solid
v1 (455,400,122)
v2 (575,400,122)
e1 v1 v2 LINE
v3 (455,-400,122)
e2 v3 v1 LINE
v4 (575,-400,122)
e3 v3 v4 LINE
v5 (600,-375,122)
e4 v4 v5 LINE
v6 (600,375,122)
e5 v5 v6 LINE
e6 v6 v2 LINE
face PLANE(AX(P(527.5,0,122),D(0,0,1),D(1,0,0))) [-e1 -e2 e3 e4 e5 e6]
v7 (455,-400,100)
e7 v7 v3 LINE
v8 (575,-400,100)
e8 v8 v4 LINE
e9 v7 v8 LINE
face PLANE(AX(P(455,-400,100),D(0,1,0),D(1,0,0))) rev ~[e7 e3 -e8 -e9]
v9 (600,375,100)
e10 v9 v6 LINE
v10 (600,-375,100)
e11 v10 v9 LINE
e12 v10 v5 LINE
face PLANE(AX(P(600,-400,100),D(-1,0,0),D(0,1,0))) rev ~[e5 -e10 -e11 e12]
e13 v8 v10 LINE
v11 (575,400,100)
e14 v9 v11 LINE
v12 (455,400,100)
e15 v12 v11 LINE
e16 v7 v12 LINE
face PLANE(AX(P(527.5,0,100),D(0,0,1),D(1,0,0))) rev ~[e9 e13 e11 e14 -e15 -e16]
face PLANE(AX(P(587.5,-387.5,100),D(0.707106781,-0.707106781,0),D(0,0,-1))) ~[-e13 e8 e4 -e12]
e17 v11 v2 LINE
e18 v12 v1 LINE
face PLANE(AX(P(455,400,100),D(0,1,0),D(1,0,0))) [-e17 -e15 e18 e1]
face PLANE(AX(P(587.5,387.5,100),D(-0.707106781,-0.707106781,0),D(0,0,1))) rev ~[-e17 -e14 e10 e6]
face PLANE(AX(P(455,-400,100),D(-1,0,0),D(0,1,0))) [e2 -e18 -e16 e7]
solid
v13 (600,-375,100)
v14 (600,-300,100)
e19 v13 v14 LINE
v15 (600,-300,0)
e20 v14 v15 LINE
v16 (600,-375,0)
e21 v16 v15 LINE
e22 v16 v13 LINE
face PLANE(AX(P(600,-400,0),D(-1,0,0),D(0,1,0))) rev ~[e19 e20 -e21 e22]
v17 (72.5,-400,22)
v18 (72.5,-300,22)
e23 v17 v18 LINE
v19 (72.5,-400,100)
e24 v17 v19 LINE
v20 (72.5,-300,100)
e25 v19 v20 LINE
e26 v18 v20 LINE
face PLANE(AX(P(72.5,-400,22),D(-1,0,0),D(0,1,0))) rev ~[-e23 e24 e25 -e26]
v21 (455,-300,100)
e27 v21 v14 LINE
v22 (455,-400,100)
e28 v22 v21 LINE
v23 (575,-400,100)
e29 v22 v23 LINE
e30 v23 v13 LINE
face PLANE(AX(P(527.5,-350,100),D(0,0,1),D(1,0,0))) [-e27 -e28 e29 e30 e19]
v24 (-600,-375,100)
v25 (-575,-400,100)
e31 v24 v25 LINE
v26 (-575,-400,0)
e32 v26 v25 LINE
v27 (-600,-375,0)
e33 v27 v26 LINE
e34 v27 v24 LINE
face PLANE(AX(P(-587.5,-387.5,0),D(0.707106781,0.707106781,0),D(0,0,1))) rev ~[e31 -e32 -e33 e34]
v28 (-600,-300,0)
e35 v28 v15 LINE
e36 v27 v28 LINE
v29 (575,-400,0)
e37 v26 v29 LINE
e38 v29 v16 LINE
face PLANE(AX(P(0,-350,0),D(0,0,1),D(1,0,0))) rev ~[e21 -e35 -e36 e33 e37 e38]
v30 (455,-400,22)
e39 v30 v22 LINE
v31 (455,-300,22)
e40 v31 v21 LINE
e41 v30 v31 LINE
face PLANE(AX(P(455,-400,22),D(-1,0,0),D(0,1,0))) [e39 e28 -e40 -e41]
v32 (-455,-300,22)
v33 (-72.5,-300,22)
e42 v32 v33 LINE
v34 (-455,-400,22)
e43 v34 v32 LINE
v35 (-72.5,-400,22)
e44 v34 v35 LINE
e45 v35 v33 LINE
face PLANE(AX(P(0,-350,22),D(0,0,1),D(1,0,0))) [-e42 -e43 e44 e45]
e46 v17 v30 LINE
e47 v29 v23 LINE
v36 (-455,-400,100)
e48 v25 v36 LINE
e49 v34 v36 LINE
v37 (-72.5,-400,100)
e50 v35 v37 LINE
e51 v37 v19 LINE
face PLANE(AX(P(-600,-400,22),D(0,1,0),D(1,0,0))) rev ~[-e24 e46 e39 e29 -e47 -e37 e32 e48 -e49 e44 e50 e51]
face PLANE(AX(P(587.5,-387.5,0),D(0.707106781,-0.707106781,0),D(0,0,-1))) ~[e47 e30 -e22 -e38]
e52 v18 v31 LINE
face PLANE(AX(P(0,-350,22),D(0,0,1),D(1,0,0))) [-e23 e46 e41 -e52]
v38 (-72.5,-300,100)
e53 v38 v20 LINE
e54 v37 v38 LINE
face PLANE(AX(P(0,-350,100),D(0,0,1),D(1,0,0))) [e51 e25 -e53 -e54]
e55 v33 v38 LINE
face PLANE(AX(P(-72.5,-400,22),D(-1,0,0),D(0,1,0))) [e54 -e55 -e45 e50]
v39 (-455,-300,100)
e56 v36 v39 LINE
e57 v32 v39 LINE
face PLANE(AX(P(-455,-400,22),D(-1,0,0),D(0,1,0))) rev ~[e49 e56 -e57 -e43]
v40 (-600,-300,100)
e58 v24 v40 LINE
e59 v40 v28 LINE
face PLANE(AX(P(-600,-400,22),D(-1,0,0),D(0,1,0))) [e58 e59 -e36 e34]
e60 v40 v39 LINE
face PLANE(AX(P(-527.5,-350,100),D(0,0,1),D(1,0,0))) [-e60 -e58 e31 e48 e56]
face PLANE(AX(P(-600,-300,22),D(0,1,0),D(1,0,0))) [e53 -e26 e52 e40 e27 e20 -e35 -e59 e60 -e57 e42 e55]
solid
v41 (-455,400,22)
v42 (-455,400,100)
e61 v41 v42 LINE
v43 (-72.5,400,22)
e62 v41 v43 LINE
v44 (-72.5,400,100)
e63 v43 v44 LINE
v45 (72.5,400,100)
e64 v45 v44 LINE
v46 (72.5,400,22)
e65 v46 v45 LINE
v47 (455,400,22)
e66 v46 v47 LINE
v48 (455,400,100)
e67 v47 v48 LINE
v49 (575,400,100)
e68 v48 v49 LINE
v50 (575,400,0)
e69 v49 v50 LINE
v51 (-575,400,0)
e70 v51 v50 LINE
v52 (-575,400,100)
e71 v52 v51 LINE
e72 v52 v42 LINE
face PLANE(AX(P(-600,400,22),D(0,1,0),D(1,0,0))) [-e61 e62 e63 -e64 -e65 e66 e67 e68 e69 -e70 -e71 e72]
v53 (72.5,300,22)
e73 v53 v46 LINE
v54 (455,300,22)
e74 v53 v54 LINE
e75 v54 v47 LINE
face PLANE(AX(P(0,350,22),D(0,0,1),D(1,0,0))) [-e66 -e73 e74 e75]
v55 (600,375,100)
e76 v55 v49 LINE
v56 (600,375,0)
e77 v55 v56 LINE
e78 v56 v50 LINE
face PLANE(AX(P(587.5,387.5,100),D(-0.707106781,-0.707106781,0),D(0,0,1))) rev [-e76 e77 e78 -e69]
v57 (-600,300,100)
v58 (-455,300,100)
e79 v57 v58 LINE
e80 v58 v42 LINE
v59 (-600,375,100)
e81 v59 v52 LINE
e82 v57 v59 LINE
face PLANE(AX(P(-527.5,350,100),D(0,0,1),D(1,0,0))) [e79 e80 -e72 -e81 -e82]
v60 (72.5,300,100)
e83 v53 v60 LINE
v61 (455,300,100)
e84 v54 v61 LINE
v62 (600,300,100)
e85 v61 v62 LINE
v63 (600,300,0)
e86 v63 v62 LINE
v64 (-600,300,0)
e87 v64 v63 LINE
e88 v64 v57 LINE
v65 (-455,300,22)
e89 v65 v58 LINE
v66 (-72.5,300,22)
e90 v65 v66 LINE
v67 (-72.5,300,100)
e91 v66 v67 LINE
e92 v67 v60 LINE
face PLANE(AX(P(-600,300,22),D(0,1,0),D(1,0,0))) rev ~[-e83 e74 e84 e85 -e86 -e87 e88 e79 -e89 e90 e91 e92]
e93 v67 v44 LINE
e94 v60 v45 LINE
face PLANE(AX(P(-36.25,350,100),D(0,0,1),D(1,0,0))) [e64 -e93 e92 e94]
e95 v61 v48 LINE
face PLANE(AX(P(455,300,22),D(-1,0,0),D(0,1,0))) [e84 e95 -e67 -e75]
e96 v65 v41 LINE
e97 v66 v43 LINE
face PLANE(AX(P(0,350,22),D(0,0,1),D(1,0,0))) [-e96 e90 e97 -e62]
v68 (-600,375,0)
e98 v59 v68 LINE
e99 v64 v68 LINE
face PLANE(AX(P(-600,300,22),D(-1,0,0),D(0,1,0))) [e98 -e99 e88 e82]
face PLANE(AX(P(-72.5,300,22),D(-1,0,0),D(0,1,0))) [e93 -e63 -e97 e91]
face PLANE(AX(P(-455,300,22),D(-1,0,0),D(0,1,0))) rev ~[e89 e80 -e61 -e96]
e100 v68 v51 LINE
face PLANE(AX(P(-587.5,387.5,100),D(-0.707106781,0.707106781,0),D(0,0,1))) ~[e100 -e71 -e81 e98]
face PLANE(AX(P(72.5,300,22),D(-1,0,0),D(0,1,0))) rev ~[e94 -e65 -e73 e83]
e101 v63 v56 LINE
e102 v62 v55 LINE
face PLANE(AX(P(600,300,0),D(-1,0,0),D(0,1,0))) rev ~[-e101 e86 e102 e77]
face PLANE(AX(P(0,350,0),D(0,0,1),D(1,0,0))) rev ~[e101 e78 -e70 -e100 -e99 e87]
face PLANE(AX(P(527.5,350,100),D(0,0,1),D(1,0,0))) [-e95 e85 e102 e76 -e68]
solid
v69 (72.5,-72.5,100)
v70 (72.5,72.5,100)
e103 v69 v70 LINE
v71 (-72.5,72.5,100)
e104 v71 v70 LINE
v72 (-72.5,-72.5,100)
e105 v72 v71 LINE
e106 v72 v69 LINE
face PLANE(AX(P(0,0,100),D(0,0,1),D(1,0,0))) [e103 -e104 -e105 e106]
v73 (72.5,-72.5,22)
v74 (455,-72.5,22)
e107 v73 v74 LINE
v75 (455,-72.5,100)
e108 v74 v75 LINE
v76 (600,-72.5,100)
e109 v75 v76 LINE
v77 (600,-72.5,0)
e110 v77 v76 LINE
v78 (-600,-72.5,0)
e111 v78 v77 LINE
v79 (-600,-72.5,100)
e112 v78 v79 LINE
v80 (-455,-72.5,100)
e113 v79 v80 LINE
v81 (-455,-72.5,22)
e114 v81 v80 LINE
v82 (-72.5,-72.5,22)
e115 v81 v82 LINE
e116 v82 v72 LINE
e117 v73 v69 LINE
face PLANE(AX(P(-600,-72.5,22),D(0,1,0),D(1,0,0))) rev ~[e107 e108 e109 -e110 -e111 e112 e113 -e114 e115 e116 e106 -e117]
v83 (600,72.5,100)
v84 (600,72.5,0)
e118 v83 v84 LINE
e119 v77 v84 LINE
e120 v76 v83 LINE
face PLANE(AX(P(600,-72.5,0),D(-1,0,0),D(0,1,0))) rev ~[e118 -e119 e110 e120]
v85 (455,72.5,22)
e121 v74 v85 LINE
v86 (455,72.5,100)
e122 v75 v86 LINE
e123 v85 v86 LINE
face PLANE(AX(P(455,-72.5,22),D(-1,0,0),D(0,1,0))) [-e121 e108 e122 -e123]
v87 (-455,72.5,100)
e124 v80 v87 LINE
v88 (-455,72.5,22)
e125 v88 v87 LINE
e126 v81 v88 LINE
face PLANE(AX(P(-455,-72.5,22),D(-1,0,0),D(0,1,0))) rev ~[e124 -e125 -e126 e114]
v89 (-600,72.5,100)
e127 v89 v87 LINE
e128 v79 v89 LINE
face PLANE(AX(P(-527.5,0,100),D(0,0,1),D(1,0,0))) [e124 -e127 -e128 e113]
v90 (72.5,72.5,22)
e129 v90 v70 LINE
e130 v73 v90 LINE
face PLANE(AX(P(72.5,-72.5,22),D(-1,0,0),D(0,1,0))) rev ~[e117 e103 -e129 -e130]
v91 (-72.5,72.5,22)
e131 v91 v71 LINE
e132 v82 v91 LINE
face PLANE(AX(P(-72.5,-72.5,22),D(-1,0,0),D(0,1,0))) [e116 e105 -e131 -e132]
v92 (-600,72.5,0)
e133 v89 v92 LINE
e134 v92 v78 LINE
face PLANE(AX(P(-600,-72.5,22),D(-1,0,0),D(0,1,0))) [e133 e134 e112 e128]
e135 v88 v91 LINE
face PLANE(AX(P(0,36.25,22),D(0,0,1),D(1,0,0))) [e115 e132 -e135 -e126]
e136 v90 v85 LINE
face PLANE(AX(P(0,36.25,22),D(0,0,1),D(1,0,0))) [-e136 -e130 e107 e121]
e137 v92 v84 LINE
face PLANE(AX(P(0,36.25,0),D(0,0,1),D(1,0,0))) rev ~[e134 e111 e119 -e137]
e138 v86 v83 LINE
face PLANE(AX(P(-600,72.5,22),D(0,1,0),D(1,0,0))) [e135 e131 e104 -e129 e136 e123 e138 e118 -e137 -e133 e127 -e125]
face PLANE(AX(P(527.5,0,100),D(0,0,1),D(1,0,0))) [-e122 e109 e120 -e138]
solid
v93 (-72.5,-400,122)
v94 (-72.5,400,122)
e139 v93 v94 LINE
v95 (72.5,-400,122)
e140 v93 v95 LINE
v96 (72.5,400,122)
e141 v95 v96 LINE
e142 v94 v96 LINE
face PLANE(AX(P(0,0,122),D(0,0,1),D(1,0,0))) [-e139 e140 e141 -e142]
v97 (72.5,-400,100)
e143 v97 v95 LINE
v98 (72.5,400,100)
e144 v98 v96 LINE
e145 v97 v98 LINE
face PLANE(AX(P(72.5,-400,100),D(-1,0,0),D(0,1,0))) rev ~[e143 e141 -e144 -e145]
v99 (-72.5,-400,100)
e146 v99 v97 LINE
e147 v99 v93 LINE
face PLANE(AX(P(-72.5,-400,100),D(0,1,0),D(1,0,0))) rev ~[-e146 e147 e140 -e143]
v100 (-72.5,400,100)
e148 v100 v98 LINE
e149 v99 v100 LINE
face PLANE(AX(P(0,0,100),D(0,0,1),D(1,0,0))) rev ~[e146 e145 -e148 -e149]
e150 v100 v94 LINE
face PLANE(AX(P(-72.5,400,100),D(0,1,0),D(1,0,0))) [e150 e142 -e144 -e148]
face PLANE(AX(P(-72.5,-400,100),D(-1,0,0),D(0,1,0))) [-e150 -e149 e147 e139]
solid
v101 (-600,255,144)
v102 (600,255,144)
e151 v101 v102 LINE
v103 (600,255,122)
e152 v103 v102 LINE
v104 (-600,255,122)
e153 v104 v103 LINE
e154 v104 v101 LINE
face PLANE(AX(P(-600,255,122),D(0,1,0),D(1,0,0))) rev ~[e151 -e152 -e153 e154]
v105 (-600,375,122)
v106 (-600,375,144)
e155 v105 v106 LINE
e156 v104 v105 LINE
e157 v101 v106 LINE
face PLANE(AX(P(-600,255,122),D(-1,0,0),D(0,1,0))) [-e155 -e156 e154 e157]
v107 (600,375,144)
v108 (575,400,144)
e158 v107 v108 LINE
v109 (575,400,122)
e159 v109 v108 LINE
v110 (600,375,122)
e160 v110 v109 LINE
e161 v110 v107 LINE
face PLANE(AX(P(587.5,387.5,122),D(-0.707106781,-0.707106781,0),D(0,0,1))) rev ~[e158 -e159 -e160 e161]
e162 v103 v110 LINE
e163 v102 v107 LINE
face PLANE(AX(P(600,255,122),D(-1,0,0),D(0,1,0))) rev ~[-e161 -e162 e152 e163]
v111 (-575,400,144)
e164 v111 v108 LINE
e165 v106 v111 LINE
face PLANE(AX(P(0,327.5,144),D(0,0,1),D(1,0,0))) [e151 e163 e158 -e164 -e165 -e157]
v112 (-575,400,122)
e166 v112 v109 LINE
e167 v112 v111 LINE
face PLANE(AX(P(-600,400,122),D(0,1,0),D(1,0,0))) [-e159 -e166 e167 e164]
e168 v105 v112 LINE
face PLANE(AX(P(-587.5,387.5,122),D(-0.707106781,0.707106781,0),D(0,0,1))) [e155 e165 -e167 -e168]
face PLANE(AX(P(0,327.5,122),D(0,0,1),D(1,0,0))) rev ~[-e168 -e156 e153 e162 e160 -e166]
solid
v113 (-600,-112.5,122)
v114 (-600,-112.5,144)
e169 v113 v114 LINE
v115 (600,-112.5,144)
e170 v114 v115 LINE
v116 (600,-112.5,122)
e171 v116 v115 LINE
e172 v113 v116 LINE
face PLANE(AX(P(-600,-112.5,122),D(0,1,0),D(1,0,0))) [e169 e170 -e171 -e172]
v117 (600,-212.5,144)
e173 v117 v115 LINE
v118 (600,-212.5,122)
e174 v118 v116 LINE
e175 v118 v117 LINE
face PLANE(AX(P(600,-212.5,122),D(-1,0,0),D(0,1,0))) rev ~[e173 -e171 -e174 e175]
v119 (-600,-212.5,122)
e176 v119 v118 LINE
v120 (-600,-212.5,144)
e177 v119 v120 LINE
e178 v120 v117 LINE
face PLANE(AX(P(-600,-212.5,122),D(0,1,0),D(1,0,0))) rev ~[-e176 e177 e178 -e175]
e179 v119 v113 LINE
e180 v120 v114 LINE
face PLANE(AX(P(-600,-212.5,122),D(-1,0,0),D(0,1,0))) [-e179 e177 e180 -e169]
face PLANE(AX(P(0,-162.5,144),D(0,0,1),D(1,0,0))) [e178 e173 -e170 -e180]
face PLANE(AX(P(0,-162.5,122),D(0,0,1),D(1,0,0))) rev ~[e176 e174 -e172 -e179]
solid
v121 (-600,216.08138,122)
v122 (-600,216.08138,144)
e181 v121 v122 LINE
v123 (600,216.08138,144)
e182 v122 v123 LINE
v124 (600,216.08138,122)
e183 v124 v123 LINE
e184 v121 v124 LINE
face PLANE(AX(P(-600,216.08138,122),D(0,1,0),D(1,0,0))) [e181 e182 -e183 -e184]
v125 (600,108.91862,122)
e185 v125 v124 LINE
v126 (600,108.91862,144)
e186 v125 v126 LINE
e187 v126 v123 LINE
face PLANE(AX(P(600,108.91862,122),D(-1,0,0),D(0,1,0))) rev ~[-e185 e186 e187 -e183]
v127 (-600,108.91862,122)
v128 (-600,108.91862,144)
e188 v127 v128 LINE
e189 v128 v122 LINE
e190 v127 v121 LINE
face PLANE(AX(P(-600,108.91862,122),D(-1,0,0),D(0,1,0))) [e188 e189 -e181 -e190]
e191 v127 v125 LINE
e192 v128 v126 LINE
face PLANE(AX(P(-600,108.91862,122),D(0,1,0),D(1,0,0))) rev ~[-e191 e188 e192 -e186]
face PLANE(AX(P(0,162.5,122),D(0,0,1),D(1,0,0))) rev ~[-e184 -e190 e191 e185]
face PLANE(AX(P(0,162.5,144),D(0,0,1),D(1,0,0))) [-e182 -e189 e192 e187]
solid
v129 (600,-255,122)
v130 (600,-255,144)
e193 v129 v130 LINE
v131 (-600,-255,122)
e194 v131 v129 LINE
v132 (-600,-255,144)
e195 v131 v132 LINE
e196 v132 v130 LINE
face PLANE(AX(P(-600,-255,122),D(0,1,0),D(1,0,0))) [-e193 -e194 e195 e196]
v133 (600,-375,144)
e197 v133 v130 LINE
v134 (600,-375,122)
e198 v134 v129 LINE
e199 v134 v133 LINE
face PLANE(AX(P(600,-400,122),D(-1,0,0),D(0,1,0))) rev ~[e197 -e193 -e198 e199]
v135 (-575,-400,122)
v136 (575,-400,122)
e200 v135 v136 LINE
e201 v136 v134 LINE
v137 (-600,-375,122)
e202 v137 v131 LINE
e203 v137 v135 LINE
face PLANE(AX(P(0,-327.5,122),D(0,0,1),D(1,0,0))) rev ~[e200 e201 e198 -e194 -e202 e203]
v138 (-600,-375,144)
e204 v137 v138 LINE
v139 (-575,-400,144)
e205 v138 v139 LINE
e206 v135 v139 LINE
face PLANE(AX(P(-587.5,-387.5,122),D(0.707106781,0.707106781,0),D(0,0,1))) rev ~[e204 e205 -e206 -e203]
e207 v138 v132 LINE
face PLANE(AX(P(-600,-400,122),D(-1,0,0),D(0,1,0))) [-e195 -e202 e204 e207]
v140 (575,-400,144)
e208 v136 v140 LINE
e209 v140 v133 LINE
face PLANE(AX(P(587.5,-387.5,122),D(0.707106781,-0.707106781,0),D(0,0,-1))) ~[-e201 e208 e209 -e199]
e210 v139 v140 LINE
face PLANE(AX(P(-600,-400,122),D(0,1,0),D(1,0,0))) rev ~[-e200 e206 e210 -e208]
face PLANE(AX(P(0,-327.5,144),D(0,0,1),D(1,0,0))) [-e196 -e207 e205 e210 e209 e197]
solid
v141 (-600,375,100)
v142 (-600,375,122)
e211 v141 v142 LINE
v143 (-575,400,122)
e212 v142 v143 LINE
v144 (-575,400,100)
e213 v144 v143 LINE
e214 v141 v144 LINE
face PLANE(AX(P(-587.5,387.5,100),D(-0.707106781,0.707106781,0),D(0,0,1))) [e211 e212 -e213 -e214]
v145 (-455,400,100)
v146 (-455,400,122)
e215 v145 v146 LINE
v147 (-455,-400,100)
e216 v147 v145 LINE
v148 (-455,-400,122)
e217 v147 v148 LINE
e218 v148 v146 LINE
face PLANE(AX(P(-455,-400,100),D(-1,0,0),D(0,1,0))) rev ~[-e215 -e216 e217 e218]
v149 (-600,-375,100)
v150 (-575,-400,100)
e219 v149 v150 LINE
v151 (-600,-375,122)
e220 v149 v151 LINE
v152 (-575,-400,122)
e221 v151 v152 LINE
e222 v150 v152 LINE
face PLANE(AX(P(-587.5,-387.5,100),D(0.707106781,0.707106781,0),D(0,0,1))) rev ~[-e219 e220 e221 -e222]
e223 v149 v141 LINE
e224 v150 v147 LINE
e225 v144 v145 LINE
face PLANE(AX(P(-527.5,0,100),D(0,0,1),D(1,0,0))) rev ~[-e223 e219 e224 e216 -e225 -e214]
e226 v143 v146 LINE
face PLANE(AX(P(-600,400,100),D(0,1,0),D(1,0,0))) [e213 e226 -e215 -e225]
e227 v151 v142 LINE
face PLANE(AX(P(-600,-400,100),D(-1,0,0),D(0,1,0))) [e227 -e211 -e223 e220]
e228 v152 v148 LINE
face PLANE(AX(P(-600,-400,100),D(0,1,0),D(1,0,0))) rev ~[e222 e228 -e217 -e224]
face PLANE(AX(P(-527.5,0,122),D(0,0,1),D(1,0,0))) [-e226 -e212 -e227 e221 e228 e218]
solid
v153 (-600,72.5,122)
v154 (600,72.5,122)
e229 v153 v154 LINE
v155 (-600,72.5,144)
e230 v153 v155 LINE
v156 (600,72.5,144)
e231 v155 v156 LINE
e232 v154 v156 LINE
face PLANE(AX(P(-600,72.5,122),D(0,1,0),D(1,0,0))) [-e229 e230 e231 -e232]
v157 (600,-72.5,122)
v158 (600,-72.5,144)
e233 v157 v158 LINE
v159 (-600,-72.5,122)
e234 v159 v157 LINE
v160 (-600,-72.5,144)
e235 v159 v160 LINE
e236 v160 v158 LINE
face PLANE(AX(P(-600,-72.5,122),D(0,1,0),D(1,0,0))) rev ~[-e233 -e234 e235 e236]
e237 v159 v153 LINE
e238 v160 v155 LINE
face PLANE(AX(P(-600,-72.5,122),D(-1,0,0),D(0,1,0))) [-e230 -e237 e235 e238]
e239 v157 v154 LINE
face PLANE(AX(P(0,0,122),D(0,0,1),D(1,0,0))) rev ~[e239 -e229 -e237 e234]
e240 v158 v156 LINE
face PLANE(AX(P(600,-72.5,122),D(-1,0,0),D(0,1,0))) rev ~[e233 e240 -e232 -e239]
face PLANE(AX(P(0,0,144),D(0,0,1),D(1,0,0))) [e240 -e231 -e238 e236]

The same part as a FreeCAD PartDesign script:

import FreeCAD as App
import Part
import Sketcher


def edges_at(feature, points):
    """Names of the edges that pass closest to the given points."""
    edges = feature.Shape.Edges
    near = lambda p: min(range(len(edges)), key=lambda i: edges[i].distToShape(Part.Vertex(*p))[0])
    return sorted({f"Edge{near(p) + 1}" for p in points})

doc = App.newDocument("Part")
body = doc.addObject("PartDesign::Body", "Body")
body.AllowCompound = True

# Sketch on XY plane
sketch1 = body.newObject("Sketcher::SketchObject", "Sketch")
sketch1.AttachmentSupport = (doc.getObject("XY_Plane"), [""])
sketch1.MapMode = "FlatFace"
sketch1.addGeometry(Part.LineSegment(App.Vector(-600, 400, 0), App.Vector(-600, 300, 0)), False)
sketch1.addGeometry(Part.LineSegment(App.Vector(-600, 300, 0), App.Vector(600, 300, 0)), False)
sketch1.addGeometry(Part.LineSegment(App.Vector(600, 300, 0), App.Vector(600, 400, 0)), False)
sketch1.addGeometry(Part.LineSegment(App.Vector(600, 400, 0), App.Vector(-600, 400, 0)), False)
sketch1.addGeometry(Part.LineSegment(App.Vector(-600, 72, 0), App.Vector(-600, -72, 0)), False)
sketch1.addGeometry(Part.LineSegment(App.Vector(-600, -72, 0), App.Vector(600, -72, 0)), False)
sketch1.addGeometry(Part.LineSegment(App.Vector(600, -72, 0), App.Vector(600, 72, 0)), False)
sketch1.addGeometry(Part.LineSegment(App.Vector(600, 72, 0), App.Vector(-600, 72, 0)), False)
sketch1.addGeometry(Part.LineSegment(App.Vector(-600, -300, 0), App.Vector(-600, -400, 0)), False)
sketch1.addGeometry(Part.LineSegment(App.Vector(-600, -400, 0), App.Vector(600, -400, 0)), False)
sketch1.addGeometry(Part.LineSegment(App.Vector(600, -400, 0), App.Vector(600, -300, 0)), False)
sketch1.addGeometry(Part.LineSegment(App.Vector(600, -300, 0), App.Vector(-600, -300, 0)), False)
sketch1.addConstraint(Sketcher.Constraint("Coincident", 0, 2, 1, 1))
sketch1.addConstraint(Sketcher.Constraint("Coincident", 1, 2, 2, 1))
sketch1.addConstraint(Sketcher.Constraint("Coincident", 2, 2, 3, 1))
sketch1.addConstraint(Sketcher.Constraint("Coincident", 3, 2, 0, 1))
sketch1.addConstraint(Sketcher.Constraint("Coincident", 4, 2, 5, 1))
sketch1.addConstraint(Sketcher.Constraint("Coincident", 5, 2, 6, 1))
sketch1.addConstraint(Sketcher.Constraint("Coincident", 6, 2, 7, 1))
sketch1.addConstraint(Sketcher.Constraint("Coincident", 7, 2, 4, 1))
sketch1.addConstraint(Sketcher.Constraint("Coincident", 8, 2, 9, 1))
sketch1.addConstraint(Sketcher.Constraint("Coincident", 9, 2, 10, 1))
sketch1.addConstraint(Sketcher.Constraint("Coincident", 10, 2, 11, 1))
sketch1.addConstraint(Sketcher.Constraint("Coincident", 11, 2, 8, 1))
sketch1.addConstraint(Sketcher.Constraint("Vertical", 0))
sketch1.addConstraint(Sketcher.Constraint("Horizontal", 1))
sketch1.addConstraint(Sketcher.Constraint("Vertical", 2))
sketch1.addConstraint(Sketcher.Constraint("Horizontal", 3))
sketch1.addConstraint(Sketcher.Constraint("Vertical", 4))
sketch1.addConstraint(Sketcher.Constraint("Horizontal", 5))
sketch1.addConstraint(Sketcher.Constraint("Vertical", 6))
sketch1.addConstraint(Sketcher.Constraint("Horizontal", 7))
sketch1.addConstraint(Sketcher.Constraint("Vertical", 8))
sketch1.addConstraint(Sketcher.Constraint("Horizontal", 9))
sketch1.addConstraint(Sketcher.Constraint("Vertical", 10))
sketch1.addConstraint(Sketcher.Constraint("Horizontal", 11))
sketch1.addConstraint(Sketcher.Constraint("Symmetric", 4, 2, 6, 2, -1, 1))
sketch1.addConstraint(Sketcher.Constraint("Symmetric", 2, 2, 8, 2, -1, 1))
sketch1.addConstraint(Sketcher.Constraint("Symmetric", 0, 2, 10, 2, -1, 1))
sketch1.addConstraint(Sketcher.Constraint("Vertical", 3, 2, 4, 2))
sketch1.addConstraint(Sketcher.Constraint("Vertical", 2, 2, 5, 2))
sketch1.addConstraint(Sketcher.Constraint("DistanceX", 1, 1, 1, 2, 1200.0))
sketch1.addConstraint(Sketcher.Constraint("DistanceY", 0, 2, 0, 1, 100.0))
sketch1.addConstraint(Sketcher.Constraint("DistanceY", 4, 2, 4, 1, 145.0))
sketch1.addConstraint(Sketcher.Constraint("DistanceY", -1, 1, 0, 2, 300.0))
pad1 = body.newObject("PartDesign::Pad", "Pad")
pad1.Profile = sketch1
pad1.Length = 22

# Sketch on XY plane
sketch2 = body.newObject("Sketcher::SketchObject", "Sketch001")
sketch2.AttachmentSupport = (doc.getObject("XY_Plane"), [""])
sketch2.MapMode = "FlatFace"
sketch2.AttachmentOffset = App.Placement(App.Vector(0, 0, 22), App.Rotation())
sketch2.addGeometry(Part.LineSegment(App.Vector(-600, 400, 0), App.Vector(-600, 300, 0)), False)
sketch2.addGeometry(Part.LineSegment(App.Vector(-600, 300, 0), App.Vector(-455, 300, 0)), False)
sketch2.addGeometry(Part.LineSegment(App.Vector(-455, 300, 0), App.Vector(-455, 400, 0)), False)
sketch2.addGeometry(Part.LineSegment(App.Vector(-455, 400, 0), App.Vector(-600, 400, 0)), False)
sketch2.addGeometry(Part.LineSegment(App.Vector(-72, 400, 0), App.Vector(-72, 300, 0)), False)
sketch2.addGeometry(Part.LineSegment(App.Vector(-72, 300, 0), App.Vector(72, 300, 0)), False)
sketch2.addGeometry(Part.LineSegment(App.Vector(72, 300, 0), App.Vector(72, 400, 0)), False)
sketch2.addGeometry(Part.LineSegment(App.Vector(72, 400, 0), App.Vector(-72, 400, 0)), False)
sketch2.addGeometry(Part.LineSegment(App.Vector(455, 400, 0), App.Vector(455, 300, 0)), False)
sketch2.addGeometry(Part.LineSegment(App.Vector(455, 300, 0), App.Vector(600, 300, 0)), False)
sketch2.addGeometry(Part.LineSegment(App.Vector(600, 300, 0), App.Vector(600, 400, 0)), False)
sketch2.addGeometry(Part.LineSegment(App.Vector(600, 400, 0), App.Vector(455, 400, 0)), False)
sketch2.addConstraint(Sketcher.Constraint("Coincident", 0, 2, 1, 1))
sketch2.addConstraint(Sketcher.Constraint("Coincident", 1, 2, 2, 1))
sketch2.addConstraint(Sketcher.Constraint("Coincident", 2, 2, 3, 1))
sketch2.addConstraint(Sketcher.Constraint("Coincident", 3, 2, 0, 1))
sketch2.addConstraint(Sketcher.Constraint("Coincident", 4, 2, 5, 1))
sketch2.addConstraint(Sketcher.Constraint("Coincident", 5, 2, 6, 1))
sketch2.addConstraint(Sketcher.Constraint("Coincident", 6, 2, 7, 1))
sketch2.addConstraint(Sketcher.Constraint("Coincident", 7, 2, 4, 1))
sketch2.addConstraint(Sketcher.Constraint("Coincident", 8, 2, 9, 1))
sketch2.addConstraint(Sketcher.Constraint("Coincident", 9, 2, 10, 1))
sketch2.addConstraint(Sketcher.Constraint("Coincident", 10, 2, 11, 1))
sketch2.addConstraint(Sketcher.Constraint("Coincident", 11, 2, 8, 1))
sketch2.addConstraint(Sketcher.Constraint("Vertical", 0))
sketch2.addConstraint(Sketcher.Constraint("Horizontal", 1))
sketch2.addConstraint(Sketcher.Constraint("Vertical", 2))
sketch2.addConstraint(Sketcher.Constraint("Horizontal", 3))
sketch2.addConstraint(Sketcher.Constraint("Vertical", 4))
sketch2.addConstraint(Sketcher.Constraint("Horizontal", 5))
sketch2.addConstraint(Sketcher.Constraint("Vertical", 6))
sketch2.addConstraint(Sketcher.Constraint("Horizontal", 7))
sketch2.addConstraint(Sketcher.Constraint("Vertical", 8))
sketch2.addConstraint(Sketcher.Constraint("Horizontal", 9))
sketch2.addConstraint(Sketcher.Constraint("Vertical", 10))
sketch2.addConstraint(Sketcher.Constraint("Horizontal", 11))
sketch2.addConstraint(Sketcher.Constraint("Symmetric", 1, 2, 8, 2, -2))
sketch2.addConstraint(Sketcher.Constraint("Symmetric", 3, 2, 10, 2, -2))
sketch2.addConstraint(Sketcher.Constraint("Horizontal", 1, 2, 4, 2))
sketch2.addConstraint(Sketcher.Constraint("Horizontal", 3, 2, 6, 2))
sketch2.addConstraint(Sketcher.Constraint("Equal", 3, 5))
sketch2.addConstraint(Sketcher.Constraint("DistanceX", 1, 1, 1, 2, 145.0))
sketch2.addConstraint(Sketcher.Constraint("DistanceY", 0, 2, 0, 1, 100.0))
sketch2.addConstraint(Sketcher.Constraint("DistanceX", 0, 2, -1, 1, 600.0))
sketch2.addConstraint(Sketcher.Constraint("DistanceY", -1, 1, 0, 2, 300.0))
sketch2.addConstraint(Sketcher.Constraint("DistanceX", 4, 2, -1, 1, 72.5))
pad2 = body.newObject("PartDesign::Pad", "Pad001")
pad2.Profile = sketch2
pad2.Length = 78

# Sketch on XY plane
sketch3 = body.newObject("Sketcher::SketchObject", "Sketch002")
sketch3.AttachmentSupport = (doc.getObject("XY_Plane"), [""])
sketch3.MapMode = "FlatFace"
sketch3.AttachmentOffset = App.Placement(App.Vector(0, 0, 22), App.Rotation())
sketch3.addGeometry(Part.LineSegment(App.Vector(-600, 72, 0), App.Vector(-600, -72, 0)), False)
sketch3.addGeometry(Part.LineSegment(App.Vector(-600, -72, 0), App.Vector(-455, -72, 0)), False)
sketch3.addGeometry(Part.LineSegment(App.Vector(-455, -72, 0), App.Vector(-455, 72, 0)), False)
sketch3.addGeometry(Part.LineSegment(App.Vector(-455, 72, 0), App.Vector(-600, 72, 0)), False)
sketch3.addGeometry(Part.LineSegment(App.Vector(-72, 72, 0), App.Vector(-72, -72, 0)), False)
sketch3.addGeometry(Part.LineSegment(App.Vector(-72, -72, 0), App.Vector(72, -72, 0)), False)
sketch3.addGeometry(Part.LineSegment(App.Vector(72, -72, 0), App.Vector(72, 72, 0)), False)
sketch3.addGeometry(Part.LineSegment(App.Vector(72, 72, 0), App.Vector(-72, 72, 0)), False)
sketch3.addGeometry(Part.LineSegment(App.Vector(455, 72, 0), App.Vector(455, -72, 0)), False)
sketch3.addGeometry(Part.LineSegment(App.Vector(455, -72, 0), App.Vector(600, -72, 0)), False)
sketch3.addGeometry(Part.LineSegment(App.Vector(600, -72, 0), App.Vector(600, 72, 0)), False)
sketch3.addGeometry(Part.LineSegment(App.Vector(600, 72, 0), App.Vector(455, 72, 0)), False)
sketch3.addConstraint(Sketcher.Constraint("Coincident", 0, 2, 1, 1))
sketch3.addConstraint(Sketcher.Constraint("Coincident", 1, 2, 2, 1))
sketch3.addConstraint(Sketcher.Constraint("Coincident", 2, 2, 3, 1))
sketch3.addConstraint(Sketcher.Constraint("Coincident", 3, 2, 0, 1))
sketch3.addConstraint(Sketcher.Constraint("Coincident", 4, 2, 5, 1))
sketch3.addConstraint(Sketcher.Constraint("Coincident", 5, 2, 6, 1))
sketch3.addConstraint(Sketcher.Constraint("Coincident", 6, 2, 7, 1))
sketch3.addConstraint(Sketcher.Constraint("Coincident", 7, 2, 4, 1))
sketch3.addConstraint(Sketcher.Constraint("Coincident", 8, 2, 9, 1))
sketch3.addConstraint(Sketcher.Constraint("Coincident", 9, 2, 10, 1))
sketch3.addConstraint(Sketcher.Constraint("Coincident", 10, 2, 11, 1))
sketch3.addConstraint(Sketcher.Constraint("Coincident", 11, 2, 8, 1))
sketch3.addConstraint(Sketcher.Constraint("Vertical", 0))
sketch3.addConstraint(Sketcher.Constraint("Horizontal", 1))
sketch3.addConstraint(Sketcher.Constraint("Vertical", 2))
sketch3.addConstraint(Sketcher.Constraint("Horizontal", 3))
sketch3.addConstraint(Sketcher.Constraint("Vertical", 4))
sketch3.addConstraint(Sketcher.Constraint("Horizontal", 5))
sketch3.addConstraint(Sketcher.Constraint("Vertical", 6))
sketch3.addConstraint(Sketcher.Constraint("Horizontal", 7))
sketch3.addConstraint(Sketcher.Constraint("Vertical", 8))
sketch3.addConstraint(Sketcher.Constraint("Horizontal", 9))
sketch3.addConstraint(Sketcher.Constraint("Vertical", 10))
sketch3.addConstraint(Sketcher.Constraint("Horizontal", 11))
sketch3.addConstraint(Sketcher.Constraint("Symmetric", 4, 2, 6, 2, -1, 1))
sketch3.addConstraint(Sketcher.Constraint("Symmetric", 2, 2, 8, 2, -1, 1))
sketch3.addConstraint(Sketcher.Constraint("Symmetric", 0, 2, 10, 2, -1, 1))
sketch3.addConstraint(Sketcher.Constraint("Horizontal", 1, 2, 4, 2))
sketch3.addConstraint(Sketcher.Constraint("Horizontal", 3, 2, 6, 2))
sketch3.addConstraint(Sketcher.Constraint("Equal", 3, 5))
sketch3.addConstraint(Sketcher.Constraint("Equal", 11, 0))
sketch3.addConstraint(Sketcher.Constraint("DistanceX", 1, 1, 1, 2, 145.0))
sketch3.addConstraint(Sketcher.Constraint("DistanceX", 0, 2, -1, 1, 600.0))
pad3 = body.newObject("PartDesign::Pad", "Pad002")
pad3.Profile = sketch3
pad3.Length = 78

# Sketch on XY plane
sketch4 = body.newObject("Sketcher::SketchObject", "Sketch003")
sketch4.AttachmentSupport = (doc.getObject("XY_Plane"), [""])
sketch4.MapMode = "FlatFace"
sketch4.AttachmentOffset = App.Placement(App.Vector(0, 0, 22), App.Rotation())
sketch4.addGeometry(Part.LineSegment(App.Vector(-600, -300, 0), App.Vector(-600, -400, 0)), False)
sketch4.addGeometry(Part.LineSegment(App.Vector(-600, -400, 0), App.Vector(-455, -400, 0)), False)
sketch4.addGeometry(Part.LineSegment(App.Vector(-455, -400, 0), App.Vector(-455, -300, 0)), False)
sketch4.addGeometry(Part.LineSegment(App.Vector(-455, -300, 0), App.Vector(-600, -300, 0)), False)
sketch4.addGeometry(Part.LineSegment(App.Vector(-72, -300, 0), App.Vector(-72, -400, 0)), False)
sketch4.addGeometry(Part.LineSegment(App.Vector(-72, -400, 0), App.Vector(72, -400, 0)), False)
sketch4.addGeometry(Part.LineSegment(App.Vector(72, -400, 0), App.Vector(72, -300, 0)), False)
sketch4.addGeometry(Part.LineSegment(App.Vector(72, -300, 0), App.Vector(-72, -300, 0)), False)
sketch4.addGeometry(Part.LineSegment(App.Vector(455, -300, 0), App.Vector(455, -400, 0)), False)
sketch4.addGeometry(Part.LineSegment(App.Vector(455, -400, 0), App.Vector(600, -400, 0)), False)
sketch4.addGeometry(Part.LineSegment(App.Vector(600, -400, 0), App.Vector(600, -300, 0)), False)
sketch4.addGeometry(Part.LineSegment(App.Vector(600, -300, 0), App.Vector(455, -300, 0)), False)
sketch4.addConstraint(Sketcher.Constraint("Coincident", 0, 2, 1, 1))
sketch4.addConstraint(Sketcher.Constraint("Coincident", 1, 2, 2, 1))
sketch4.addConstraint(Sketcher.Constraint("Coincident", 2, 2, 3, 1))
sketch4.addConstraint(Sketcher.Constraint("Coincident", 3, 2, 0, 1))
sketch4.addConstraint(Sketcher.Constraint("Coincident", 4, 2, 5, 1))
sketch4.addConstraint(Sketcher.Constraint("Coincident", 5, 2, 6, 1))
sketch4.addConstraint(Sketcher.Constraint("Coincident", 6, 2, 7, 1))
sketch4.addConstraint(Sketcher.Constraint("Coincident", 7, 2, 4, 1))
sketch4.addConstraint(Sketcher.Constraint("Coincident", 8, 2, 9, 1))
sketch4.addConstraint(Sketcher.Constraint("Coincident", 9, 2, 10, 1))
sketch4.addConstraint(Sketcher.Constraint("Coincident", 10, 2, 11, 1))
sketch4.addConstraint(Sketcher.Constraint("Coincident", 11, 2, 8, 1))
sketch4.addConstraint(Sketcher.Constraint("Vertical", 0))
sketch4.addConstraint(Sketcher.Constraint("Horizontal", 1))
sketch4.addConstraint(Sketcher.Constraint("Vertical", 2))
sketch4.addConstraint(Sketcher.Constraint("Horizontal", 3))
sketch4.addConstraint(Sketcher.Constraint("Vertical", 4))
sketch4.addConstraint(Sketcher.Constraint("Horizontal", 5))
sketch4.addConstraint(Sketcher.Constraint("Vertical", 6))
sketch4.addConstraint(Sketcher.Constraint("Horizontal", 7))
sketch4.addConstraint(Sketcher.Constraint("Vertical", 8))
sketch4.addConstraint(Sketcher.Constraint("Horizontal", 9))
sketch4.addConstraint(Sketcher.Constraint("Vertical", 10))
sketch4.addConstraint(Sketcher.Constraint("Horizontal", 11))
sketch4.addConstraint(Sketcher.Constraint("Symmetric", 1, 2, 8, 2, -2))
sketch4.addConstraint(Sketcher.Constraint("Symmetric", 3, 2, 10, 2, -2))
sketch4.addConstraint(Sketcher.Constraint("Horizontal", 1, 2, 4, 2))
sketch4.addConstraint(Sketcher.Constraint("Horizontal", 3, 2, 6, 2))
sketch4.addConstraint(Sketcher.Constraint("Equal", 3, 5))
sketch4.addConstraint(Sketcher.Constraint("DistanceX", 1, 1, 1, 2, 145.0))
sketch4.addConstraint(Sketcher.Constraint("DistanceY", 0, 2, 0, 1, 100.0))
sketch4.addConstraint(Sketcher.Constraint("DistanceX", 0, 2, -1, 1, 600.0))
sketch4.addConstraint(Sketcher.Constraint("DistanceY", 0, 2, -1, 1, 400.0))
sketch4.addConstraint(Sketcher.Constraint("DistanceX", 4, 2, -1, 1, 72.5))
pad4 = body.newObject("PartDesign::Pad", "Pad003")
pad4.Profile = sketch4
pad4.Length = 78
doc.recompute()

chamfer = body.newObject("PartDesign::Chamfer", "Chamfer")
chamfer.Base = (pad4, edges_at(pad4, [
    (-600, -400, 50),
    (600, -400, 50),
    (600, 400, 50),
    (-600, 400, 50),
]))
chamfer.Size = 25
body2 = doc.addObject("PartDesign::Body", "Body001")

# Sketch on XY plane
sketch5 = body2.newObject("Sketcher::SketchObject", "Sketch004")
sketch5.AttachmentSupport = (doc.getObject("XY_Plane001"), [""])
sketch5.MapMode = "FlatFace"
sketch5.AttachmentOffset = App.Placement(App.Vector(0, 0, 100), App.Rotation())
sketch5.addGeometry(Part.LineSegment(App.Vector(-600, 400, 0), App.Vector(-600, -400, 0)), False)
sketch5.addGeometry(Part.LineSegment(App.Vector(-600, -400, 0), App.Vector(-455, -400, 0)), False)
sketch5.addGeometry(Part.LineSegment(App.Vector(-455, -400, 0), App.Vector(-455, 400, 0)), False)
sketch5.addGeometry(Part.LineSegment(App.Vector(-455, 400, 0), App.Vector(-600, 400, 0)), False)
sketch5.addConstraint(Sketcher.Constraint("Coincident", 0, 2, 1, 1))
sketch5.addConstraint(Sketcher.Constraint("Coincident", 1, 2, 2, 1))
sketch5.addConstraint(Sketcher.Constraint("Coincident", 2, 2, 3, 1))
sketch5.addConstraint(Sketcher.Constraint("Coincident", 3, 2, 0, 1))
sketch5.addConstraint(Sketcher.Constraint("Vertical", 0))
sketch5.addConstraint(Sketcher.Constraint("Horizontal", 1))
sketch5.addConstraint(Sketcher.Constraint("Vertical", 2))
sketch5.addConstraint(Sketcher.Constraint("Horizontal", 3))
sketch5.addConstraint(Sketcher.Constraint("DistanceX", 1, 1, 1, 2, 145.0))
sketch5.addConstraint(Sketcher.Constraint("DistanceY", 0, 2, 0, 1, 800.0))
sketch5.addConstraint(Sketcher.Constraint("DistanceX", 0, 2, -1, 1, 600.0))
sketch5.addConstraint(Sketcher.Constraint("DistanceY", 0, 2, -1, 1, 400.0))
pad5 = body2.newObject("PartDesign::Pad", "Pad004")
pad5.Profile = sketch5
pad5.Length = 22
doc.recompute()

chamfer2 = body2.newObject("PartDesign::Chamfer", "Chamfer001")
chamfer2.Base = (pad5, edges_at(pad5, [(-600, -400, 111), (-600, 400, 111)]))
chamfer2.Size = 25
body3 = doc.addObject("PartDesign::Body", "Body002")

# Sketch on XY plane
sketch6 = body3.newObject("Sketcher::SketchObject", "Sketch005")
sketch6.AttachmentSupport = (doc.getObject("XY_Plane002"), [""])
sketch6.MapMode = "FlatFace"
sketch6.AttachmentOffset = App.Placement(App.Vector(0, 0, 100), App.Rotation())
sketch6.addGeometry(Part.LineSegment(App.Vector(-72, 400, 0), App.Vector(-72, -400, 0)), False)
sketch6.addGeometry(Part.LineSegment(App.Vector(-72, -400, 0), App.Vector(72, -400, 0)), False)
sketch6.addGeometry(Part.LineSegment(App.Vector(72, -400, 0), App.Vector(72, 400, 0)), False)
sketch6.addGeometry(Part.LineSegment(App.Vector(72, 400, 0), App.Vector(-72, 400, 0)), False)
sketch6.addConstraint(Sketcher.Constraint("Coincident", 0, 2, 1, 1))
sketch6.addConstraint(Sketcher.Constraint("Coincident", 1, 2, 2, 1))
sketch6.addConstraint(Sketcher.Constraint("Coincident", 2, 2, 3, 1))
sketch6.addConstraint(Sketcher.Constraint("Coincident", 3, 2, 0, 1))
sketch6.addConstraint(Sketcher.Constraint("Vertical", 0))
sketch6.addConstraint(Sketcher.Constraint("Horizontal", 1))
sketch6.addConstraint(Sketcher.Constraint("Vertical", 2))
sketch6.addConstraint(Sketcher.Constraint("Horizontal", 3))
sketch6.addConstraint(Sketcher.Constraint("Symmetric", 0, 2, 2, 2, -1, 1))
sketch6.addConstraint(Sketcher.Constraint("DistanceX", 1, 1, 1, 2, 145.0))
sketch6.addConstraint(Sketcher.Constraint("DistanceY", 0, 2, 0, 1, 800.0))
pad6 = body3.newObject("PartDesign::Pad", "Pad005")
pad6.Profile = sketch6
pad6.Length = 22
body4 = doc.addObject("PartDesign::Body", "Body003")

# Sketch on XY plane
sketch7 = body4.newObject("Sketcher::SketchObject", "Sketch006")
sketch7.AttachmentSupport = (doc.getObject("XY_Plane003"), [""])
sketch7.MapMode = "FlatFace"
sketch7.AttachmentOffset = App.Placement(App.Vector(0, 0, 100), App.Rotation())
sketch7.addGeometry(Part.LineSegment(App.Vector(455, 400, 0), App.Vector(455, -400, 0)), False)
sketch7.addGeometry(Part.LineSegment(App.Vector(455, -400, 0), App.Vector(600, -400, 0)), False)
sketch7.addGeometry(Part.LineSegment(App.Vector(600, -400, 0), App.Vector(600, 400, 0)), False)
sketch7.addGeometry(Part.LineSegment(App.Vector(600, 400, 0), App.Vector(455, 400, 0)), False)
sketch7.addConstraint(Sketcher.Constraint("Coincident", 0, 2, 1, 1))
sketch7.addConstraint(Sketcher.Constraint("Coincident", 1, 2, 2, 1))
sketch7.addConstraint(Sketcher.Constraint("Coincident", 2, 2, 3, 1))
sketch7.addConstraint(Sketcher.Constraint("Coincident", 3, 2, 0, 1))
sketch7.addConstraint(Sketcher.Constraint("Vertical", 0))
sketch7.addConstraint(Sketcher.Constraint("Horizontal", 1))
sketch7.addConstraint(Sketcher.Constraint("Vertical", 2))
sketch7.addConstraint(Sketcher.Constraint("Horizontal", 3))
sketch7.addConstraint(Sketcher.Constraint("DistanceX", 1, 1, 1, 2, 145.0))
sketch7.addConstraint(Sketcher.Constraint("DistanceY", 0, 2, 0, 1, 800.0))
sketch7.addConstraint(Sketcher.Constraint("DistanceX", -1, 1, 0, 2, 455.0))
sketch7.addConstraint(Sketcher.Constraint("DistanceY", 0, 2, -1, 1, 400.0))
pad7 = body4.newObject("PartDesign::Pad", "Pad006")
pad7.Profile = sketch7
pad7.Length = 22
doc.recompute()

chamfer3 = body4.newObject("PartDesign::Chamfer", "Chamfer002")
chamfer3.Base = (pad7, edges_at(pad7, [(600, -400, 111), (600, 400, 111)]))
chamfer3.Size = 25
body5 = doc.addObject("PartDesign::Body", "Body004")

# Sketch on XY plane
sketch8 = body5.newObject("Sketcher::SketchObject", "Sketch007")
sketch8.AttachmentSupport = (doc.getObject("XY_Plane004"), [""])
sketch8.MapMode = "FlatFace"
sketch8.AttachmentOffset = App.Placement(App.Vector(0, 0, 122), App.Rotation())
sketch8.addGeometry(Part.LineSegment(App.Vector(-600, 400, 0), App.Vector(-600, 255, 0)), False)
sketch8.addGeometry(Part.LineSegment(App.Vector(-600, 255, 0), App.Vector(600, 255, 0)), False)
sketch8.addGeometry(Part.LineSegment(App.Vector(600, 255, 0), App.Vector(600, 400, 0)), False)
sketch8.addGeometry(Part.LineSegment(App.Vector(600, 400, 0), App.Vector(-600, 400, 0)), False)
sketch8.addConstraint(Sketcher.Constraint("Coincident", 0, 2, 1, 1))
sketch8.addConstraint(Sketcher.Constraint("Coincident", 1, 2, 2, 1))
sketch8.addConstraint(Sketcher.Constraint("Coincident", 2, 2, 3, 1))
sketch8.addConstraint(Sketcher.Constraint("Coincident", 3, 2, 0, 1))
sketch8.addConstraint(Sketcher.Constraint("Vertical", 0))
sketch8.addConstraint(Sketcher.Constraint("Horizontal", 1))
sketch8.addConstraint(Sketcher.Constraint("Vertical", 2))
sketch8.addConstraint(Sketcher.Constraint("Horizontal", 3))
sketch8.addConstraint(Sketcher.Constraint("DistanceX", 1, 1, 1, 2, 1200.0))
sketch8.addConstraint(Sketcher.Constraint("DistanceY", 0, 2, 0, 1, 145.0))
sketch8.addConstraint(Sketcher.Constraint("DistanceX", 0, 2, -1, 1, 600.0))
sketch8.addConstraint(Sketcher.Constraint("DistanceY", -1, 1, 0, 2, 255.0))
pad8 = body5.newObject("PartDesign::Pad", "Pad007")
pad8.Profile = sketch8
pad8.Length = 22
doc.recompute()

chamfer4 = body5.newObject("PartDesign::Chamfer", "Chamfer003")
chamfer4.Base = (pad8, edges_at(pad8, [(600, 400, 133), (-600, 400, 133)]))
chamfer4.Size = 25
body6 = doc.addObject("PartDesign::Body", "Body005")

# Sketch on XY plane
sketch9 = body6.newObject("Sketcher::SketchObject", "Sketch008")
sketch9.AttachmentSupport = (doc.getObject("XY_Plane005"), [""])
sketch9.MapMode = "FlatFace"
sketch9.AttachmentOffset = App.Placement(App.Vector(0, 0, 122), App.Rotation())
sketch9.addGeometry(Part.LineSegment(App.Vector(-600, 72, 0), App.Vector(-600, -72, 0)), False)
sketch9.addGeometry(Part.LineSegment(App.Vector(-600, -72, 0), App.Vector(600, -72, 0)), False)
sketch9.addGeometry(Part.LineSegment(App.Vector(600, -72, 0), App.Vector(600, 72, 0)), False)
sketch9.addGeometry(Part.LineSegment(App.Vector(600, 72, 0), App.Vector(-600, 72, 0)), False)
sketch9.addConstraint(Sketcher.Constraint("Coincident", 0, 2, 1, 1))
sketch9.addConstraint(Sketcher.Constraint("Coincident", 1, 2, 2, 1))
sketch9.addConstraint(Sketcher.Constraint("Coincident", 2, 2, 3, 1))
sketch9.addConstraint(Sketcher.Constraint("Coincident", 3, 2, 0, 1))
sketch9.addConstraint(Sketcher.Constraint("Vertical", 0))
sketch9.addConstraint(Sketcher.Constraint("Horizontal", 1))
sketch9.addConstraint(Sketcher.Constraint("Vertical", 2))
sketch9.addConstraint(Sketcher.Constraint("Horizontal", 3))
sketch9.addConstraint(Sketcher.Constraint("Symmetric", 0, 2, 2, 2, -1, 1))
sketch9.addConstraint(Sketcher.Constraint("DistanceX", 1, 1, 1, 2, 1200.0))
sketch9.addConstraint(Sketcher.Constraint("DistanceY", 0, 2, 0, 1, 145.0))
pad9 = body6.newObject("PartDesign::Pad", "Pad008")
pad9.Profile = sketch9
pad9.Length = 22
body7 = doc.addObject("PartDesign::Body", "Body006")

# Sketch on XY plane
sketch10 = body7.newObject("Sketcher::SketchObject", "Sketch009")
sketch10.AttachmentSupport = (doc.getObject("XY_Plane006"), [""])
sketch10.MapMode = "FlatFace"
sketch10.AttachmentOffset = App.Placement(App.Vector(0, 0, 122), App.Rotation())
sketch10.addGeometry(Part.LineSegment(App.Vector(-600, -255, 0), App.Vector(-600, -400, 0)), False)
sketch10.addGeometry(Part.LineSegment(App.Vector(-600, -400, 0), App.Vector(600, -400, 0)), False)
sketch10.addGeometry(Part.LineSegment(App.Vector(600, -400, 0), App.Vector(600, -255, 0)), False)
sketch10.addGeometry(Part.LineSegment(App.Vector(600, -255, 0), App.Vector(-600, -255, 0)), False)
sketch10.addConstraint(Sketcher.Constraint("Coincident", 0, 2, 1, 1))
sketch10.addConstraint(Sketcher.Constraint("Coincident", 1, 2, 2, 1))
sketch10.addConstraint(Sketcher.Constraint("Coincident", 2, 2, 3, 1))
sketch10.addConstraint(Sketcher.Constraint("Coincident", 3, 2, 0, 1))
sketch10.addConstraint(Sketcher.Constraint("Vertical", 0))
sketch10.addConstraint(Sketcher.Constraint("Horizontal", 1))
sketch10.addConstraint(Sketcher.Constraint("Vertical", 2))
sketch10.addConstraint(Sketcher.Constraint("Horizontal", 3))
sketch10.addConstraint(Sketcher.Constraint("DistanceX", 1, 1, 1, 2, 1200.0))
sketch10.addConstraint(Sketcher.Constraint("DistanceY", 0, 2, 0, 1, 145.0))
sketch10.addConstraint(Sketcher.Constraint("DistanceX", 0, 2, -1, 1, 600.0))
sketch10.addConstraint(Sketcher.Constraint("DistanceY", 0, 2, -1, 1, 400.0))
pad10 = body7.newObject("PartDesign::Pad", "Pad009")
pad10.Profile = sketch10
pad10.Length = 22
doc.recompute()

chamfer5 = body7.newObject("PartDesign::Chamfer", "Chamfer004")
chamfer5.Base = (pad10, edges_at(pad10, [(-600, -400, 133), (600, -400, 133)]))
chamfer5.Size = 25
body8 = doc.addObject("PartDesign::Body", "Body007")

# Sketch on XY plane
sketch11 = body8.newObject("Sketcher::SketchObject", "Sketch010")
sketch11.AttachmentSupport = (doc.getObject("XY_Plane007"), [""])
sketch11.MapMode = "FlatFace"
sketch11.AttachmentOffset = App.Placement(App.Vector(0, 0, 122), App.Rotation())
sketch11.addGeometry(Part.LineSegment(App.Vector(-600, 216, 0), App.Vector(-600, 109, 0)), False)
sketch11.addGeometry(Part.LineSegment(App.Vector(-600, 109, 0), App.Vector(600, 109, 0)), False)
sketch11.addGeometry(Part.LineSegment(App.Vector(600, 109, 0), App.Vector(600, 216, 0)), False)
sketch11.addGeometry(Part.LineSegment(App.Vector(600, 216, 0), App.Vector(-600, 216, 0)), False)
sketch11.addConstraint(Sketcher.Constraint("Coincident", 0, 2, 1, 1))
sketch11.addConstraint(Sketcher.Constraint("Coincident", 1, 2, 2, 1))
sketch11.addConstraint(Sketcher.Constraint("Coincident", 2, 2, 3, 1))
sketch11.addConstraint(Sketcher.Constraint("Coincident", 3, 2, 0, 1))
sketch11.addConstraint(Sketcher.Constraint("Vertical", 0))
sketch11.addConstraint(Sketcher.Constraint("Horizontal", 1))
sketch11.addConstraint(Sketcher.Constraint("Vertical", 2))
sketch11.addConstraint(Sketcher.Constraint("Horizontal", 3))
sketch11.addConstraint(Sketcher.Constraint("DistanceX", 1, 1, 1, 2, 1200.0))
sketch11.addConstraint(Sketcher.Constraint("DistanceX", 0, 2, -1, 1, 600.0))
sketch11.addConstraint(Sketcher.Constraint("DistanceY", 0, 2, 0, 1, 107.16276))
sketch11.addConstraint(Sketcher.Constraint("DistanceY", -1, 1, 0, 2, 108.91862))
pad11 = body8.newObject("PartDesign::Pad", "Pad010")
pad11.Profile = sketch11
pad11.Length = 22
body9 = doc.addObject("PartDesign::Body", "Body008")

# Sketch on XY plane
sketch12 = body9.newObject("Sketcher::SketchObject", "Sketch011")
sketch12.AttachmentSupport = (doc.getObject("XY_Plane008"), [""])
sketch12.MapMode = "FlatFace"
sketch12.AttachmentOffset = App.Placement(App.Vector(0, 0, 122), App.Rotation())
sketch12.addGeometry(Part.LineSegment(App.Vector(-600, -112, 0), App.Vector(-600, -212, 0)), False)
sketch12.addGeometry(Part.LineSegment(App.Vector(-600, -212, 0), App.Vector(600, -212, 0)), False)
sketch12.addGeometry(Part.LineSegment(App.Vector(600, -212, 0), App.Vector(600, -112, 0)), False)
sketch12.addGeometry(Part.LineSegment(App.Vector(600, -112, 0), App.Vector(-600, -112, 0)), False)
sketch12.addConstraint(Sketcher.Constraint("Coincident", 0, 2, 1, 1))
sketch12.addConstraint(Sketcher.Constraint("Coincident", 1, 2, 2, 1))
sketch12.addConstraint(Sketcher.Constraint("Coincident", 2, 2, 3, 1))
sketch12.addConstraint(Sketcher.Constraint("Coincident", 3, 2, 0, 1))
sketch12.addConstraint(Sketcher.Constraint("Vertical", 0))
sketch12.addConstraint(Sketcher.Constraint("Horizontal", 1))
sketch12.addConstraint(Sketcher.Constraint("Vertical", 2))
sketch12.addConstraint(Sketcher.Constraint("Horizontal", 3))
sketch12.addConstraint(Sketcher.Constraint("DistanceX", 1, 1, 1, 2, 1200.0))
sketch12.addConstraint(Sketcher.Constraint("DistanceY", 0, 2, 0, 1, 100.0))
sketch12.addConstraint(Sketcher.Constraint("DistanceX", 0, 2, -1, 1, 600.0))
sketch12.addConstraint(Sketcher.Constraint("DistanceY", 0, 2, -1, 1, 212.5))
pad12 = body9.newObject("PartDesign::Pad", "Pad011")
pad12.Profile = sketch12
pad12.Length = 22

doc.recompute()
